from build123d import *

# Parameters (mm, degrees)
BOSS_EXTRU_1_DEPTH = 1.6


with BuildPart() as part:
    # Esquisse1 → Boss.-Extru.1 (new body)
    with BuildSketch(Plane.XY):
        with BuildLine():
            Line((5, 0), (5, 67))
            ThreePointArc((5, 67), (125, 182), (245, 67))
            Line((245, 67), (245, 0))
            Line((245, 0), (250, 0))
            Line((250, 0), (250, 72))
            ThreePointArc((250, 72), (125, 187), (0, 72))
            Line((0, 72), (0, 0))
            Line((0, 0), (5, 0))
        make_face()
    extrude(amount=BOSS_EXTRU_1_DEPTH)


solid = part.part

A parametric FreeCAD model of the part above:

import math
import FreeCAD as App
import Part
import Sketcher

V = App.Vector

doc = App.newDocument("Part")
body = doc.addObject("PartDesign::Body", "Body")

sketch1 = body.newObject("Sketcher::SketchObject", "Sketch")
sketch1.AttachmentSupport = (doc.getObject("XY_Plane"), [""])
sketch1.MapMode = "FlatFace"
sketch1.addGeometry([
    Part.LineSegment(V(5, 0, 0), V(5, 67, 0)),
    Part.ArcOfCircle(Part.Circle(V(125, 61.891304, 0), V(0, 0, 1), 120.108696), math.radians(2.43775), math.radians(177.56225)),
    Part.LineSegment(V(245, 67, 0), V(245, 0, 0)),
    Part.LineSegment(V(245, 0, 0), V(250, 0, 0)),
    Part.LineSegment(V(250, 0, 0), V(250, 72, 0)),
    Part.ArcOfCircle(Part.Circle(V(125, 61.565217, 0), V(0, 0, 1), 125.434783), math.radians(4.771888), math.radians(175.228112)),
    Part.LineSegment(V(0, 72, 0), V(0, 0, 0)),
    Part.LineSegment(V(0, 0, 0), V(5, 0, 0)),
], False)
sketch1.addConstraint([
    Sketcher.Constraint("Coincident", 0, 2, 1, 2),
    Sketcher.Constraint("Coincident", 1, 1, 2, 1),
    Sketcher.Constraint("Coincident", 2, 2, 3, 1),
    Sketcher.Constraint("Coincident", 3, 2, 4, 1),
    Sketcher.Constraint("Coincident", 4, 2, 5, 1),
    Sketcher.Constraint("Coincident", 5, 2, 6, 1),
    Sketcher.Constraint("Coincident", 6, 2, 7, 1),
    Sketcher.Constraint("Coincident", 7, 2, 0, 1),
    Sketcher.Constraint("Vertical", 0),
    Sketcher.Constraint("Vertical", 2),
    Sketcher.Constraint("Horizontal", 3),
    Sketcher.Constraint("Vertical", 4),
    Sketcher.Constraint("Vertical", 6),
    Sketcher.Constraint("Horizontal", 7),
    Sketcher.Constraint("Coincident", 6, 2, -1, 1),
    Sketcher.Constraint("PointOnObject", 2, 2, -1),
    Sketcher.Constraint("Horizontal", 0, 2, 1, 1),
    Sketcher.Constraint("Horizontal", 4, 2, 5, 2),
    Sketcher.Constraint("Vertical", 1, 3, 5, 3),
    Sketcher.Constraint("DistanceX", 3, 1, 3, 2, 5.0),
    Sketcher.Constraint("DistanceY", 0, 1, 0, 2, 67.0),
    Sketcher.Constraint("DistanceY", 4, 1, 4, 2, 72.0),
    Sketcher.Constraint("DistanceX", -1, 1, 1, 3, 125.0),
    Sketcher.Constraint("Radius", 1, 120.108696),
    Sketcher.Constraint("Radius", 5, 125.434783),
])
pad1 = body.newObject("PartDesign::Pad", "Pad")
pad1.Profile = sketch1
pad1.Length = 1.6

doc.recompute()
